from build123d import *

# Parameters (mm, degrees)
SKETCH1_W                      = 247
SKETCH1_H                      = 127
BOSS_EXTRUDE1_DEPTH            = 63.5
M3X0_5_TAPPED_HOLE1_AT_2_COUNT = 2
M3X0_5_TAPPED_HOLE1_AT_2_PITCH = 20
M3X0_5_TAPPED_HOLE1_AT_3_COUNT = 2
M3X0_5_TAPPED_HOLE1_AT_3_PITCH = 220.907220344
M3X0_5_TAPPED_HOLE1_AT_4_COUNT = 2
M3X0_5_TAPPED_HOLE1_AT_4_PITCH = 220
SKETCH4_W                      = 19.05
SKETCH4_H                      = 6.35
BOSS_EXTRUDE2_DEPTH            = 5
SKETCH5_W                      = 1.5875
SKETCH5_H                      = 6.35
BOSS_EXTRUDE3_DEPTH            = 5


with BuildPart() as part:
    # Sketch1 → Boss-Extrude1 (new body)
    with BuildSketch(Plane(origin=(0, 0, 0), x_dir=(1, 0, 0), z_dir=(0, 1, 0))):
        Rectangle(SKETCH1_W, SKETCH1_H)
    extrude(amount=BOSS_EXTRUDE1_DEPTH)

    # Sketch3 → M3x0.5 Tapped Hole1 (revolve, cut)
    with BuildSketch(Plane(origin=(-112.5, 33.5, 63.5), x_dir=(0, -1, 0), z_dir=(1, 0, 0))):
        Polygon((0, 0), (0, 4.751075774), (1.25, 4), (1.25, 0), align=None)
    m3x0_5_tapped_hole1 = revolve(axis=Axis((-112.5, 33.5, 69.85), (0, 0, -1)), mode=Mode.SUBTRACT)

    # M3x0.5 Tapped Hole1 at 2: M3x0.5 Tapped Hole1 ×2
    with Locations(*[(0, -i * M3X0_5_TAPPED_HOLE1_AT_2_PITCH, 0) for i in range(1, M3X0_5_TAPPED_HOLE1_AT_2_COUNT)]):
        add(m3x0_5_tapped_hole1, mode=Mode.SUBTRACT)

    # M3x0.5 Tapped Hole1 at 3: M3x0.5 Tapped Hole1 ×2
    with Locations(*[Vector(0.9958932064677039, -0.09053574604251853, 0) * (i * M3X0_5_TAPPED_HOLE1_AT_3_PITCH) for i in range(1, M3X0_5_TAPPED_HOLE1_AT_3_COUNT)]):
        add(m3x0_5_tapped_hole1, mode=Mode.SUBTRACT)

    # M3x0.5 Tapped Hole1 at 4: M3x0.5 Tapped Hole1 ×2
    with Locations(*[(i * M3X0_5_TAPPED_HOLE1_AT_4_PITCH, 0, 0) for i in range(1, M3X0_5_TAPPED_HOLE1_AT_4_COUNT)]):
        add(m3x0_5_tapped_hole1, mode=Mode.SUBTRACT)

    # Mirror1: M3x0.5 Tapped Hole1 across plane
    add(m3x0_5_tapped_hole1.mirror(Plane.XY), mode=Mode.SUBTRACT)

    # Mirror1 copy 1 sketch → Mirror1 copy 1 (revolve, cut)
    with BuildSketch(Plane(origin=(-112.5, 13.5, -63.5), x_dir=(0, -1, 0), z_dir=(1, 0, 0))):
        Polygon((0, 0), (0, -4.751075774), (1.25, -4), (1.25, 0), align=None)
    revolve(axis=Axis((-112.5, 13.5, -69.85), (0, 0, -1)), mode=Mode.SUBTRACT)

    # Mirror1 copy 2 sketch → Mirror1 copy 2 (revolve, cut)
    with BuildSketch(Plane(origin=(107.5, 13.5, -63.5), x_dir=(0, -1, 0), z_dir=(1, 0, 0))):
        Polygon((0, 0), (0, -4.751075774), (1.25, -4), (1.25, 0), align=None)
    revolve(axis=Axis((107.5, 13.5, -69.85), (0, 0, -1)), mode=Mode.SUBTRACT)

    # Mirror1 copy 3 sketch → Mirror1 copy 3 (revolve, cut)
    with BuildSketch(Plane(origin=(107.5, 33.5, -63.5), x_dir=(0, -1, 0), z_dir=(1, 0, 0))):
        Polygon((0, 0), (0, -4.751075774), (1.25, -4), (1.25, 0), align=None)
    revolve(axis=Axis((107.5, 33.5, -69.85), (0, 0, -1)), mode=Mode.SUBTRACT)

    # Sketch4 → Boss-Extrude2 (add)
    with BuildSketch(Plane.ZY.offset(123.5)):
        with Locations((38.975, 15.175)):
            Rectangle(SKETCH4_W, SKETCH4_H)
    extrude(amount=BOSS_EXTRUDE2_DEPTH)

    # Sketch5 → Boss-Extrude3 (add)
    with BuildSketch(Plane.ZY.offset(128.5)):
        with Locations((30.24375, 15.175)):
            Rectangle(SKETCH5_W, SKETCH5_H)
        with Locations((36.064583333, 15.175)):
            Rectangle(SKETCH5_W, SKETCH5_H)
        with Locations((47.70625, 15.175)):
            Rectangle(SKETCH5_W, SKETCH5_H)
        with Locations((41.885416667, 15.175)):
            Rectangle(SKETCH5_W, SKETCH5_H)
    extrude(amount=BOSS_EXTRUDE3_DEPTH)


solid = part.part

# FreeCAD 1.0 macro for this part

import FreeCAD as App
import Part
import Sketcher
Q = App.Units.Quantity


def add_polygon(sketch, points):
    """Adds a closed chain of lines whose ends are joined by coincident constraints."""
    first, n = sketch.GeometryCount, len(points)
    for a, b in zip(points, points[1:] + points[:1]):
        sketch.addGeometry(Part.LineSegment(App.Vector(*a, 0), App.Vector(*b, 0)), False)
    for i in range(n):
        sketch.addConstraint(Sketcher.Constraint("Coincident", first + i, 2, first + (i + 1) % n, 1))

doc = App.newDocument("Part")
body = doc.addObject("PartDesign::Body", "Body")

# Sketch on XZ plane
sketch1 = body.newObject("Sketcher::SketchObject", "Sketch")
sketch1.AttachmentSupport = (doc.getObject("XZ_Plane"), [""])
sketch1.MapMode = "FlatFace"
add_polygon(sketch1, [(-124, -64), (-124, 64), (124, 64), (124, -64)])  # lines 0-3
sketch1.addConstraint([
    Sketcher.Constraint("Vertical", 0),
    Sketcher.Constraint("Horizontal", 1),
    Sketcher.Constraint("Vertical", 2),
    Sketcher.Constraint("Horizontal", 3),
    Sketcher.Constraint("Symmetric", 0, 2, 2, 2, -1, 1),
    Sketcher.Constraint("DistanceY", 0, 1, 0, 2, Q("5 in")),
    Sketcher.Constraint("DistanceX", 1, 1, 1, 2, 247.0),
])
pad1 = body.newObject("PartDesign::Pad", "Pad")
pad1.Profile = sketch1
pad1.Length = Q("2.5 in")
pad1.Reversed = True

# Sketch on YZ plane
sketch2 = body.newObject("Sketcher::SketchObject", "Sketch001")
sketch2.AttachmentSupport = (doc.getObject("YZ_Plane"), [""])
sketch2.MapMode = "FlatFace"
sketch2.AttachmentOffset = App.Placement(App.Vector(0, 0, -112.5), App.Rotation())
add_polygon(sketch2, [(33.5, 58.7), (33.5, 63.5), (32.2, 63.5), (32.2, 59.5)])  # lines 0-3
sketch2.addGeometry(Part.LineSegment(App.Vector(33.5, 63.5, 0), App.Vector(33.5, 58.7, 0)), True)  # axis
sketch2.addConstraint([
    Sketcher.Constraint("Vertical", 0),
    Sketcher.Constraint("Horizontal", 1),
    Sketcher.Constraint("Vertical", 2),
    Sketcher.Constraint("Vertical", 4),
    Sketcher.Constraint("Coincident", 4, 1, 0, 2),
    Sketcher.Constraint("Equal", 0, 4),
    Sketcher.Constraint("Angle", 3, Q("-31 deg")),
    Sketcher.Constraint("DistanceY", -1, 1, 0, 2, Q("2.5 in")),
    Sketcher.Constraint("DistanceX", 1, 2, 1, 1, 1.25),
    Sketcher.Constraint("DistanceY", 2, 2, 2, 1, 4.0),
    Sketcher.Constraint("DistanceX", -1, 1, 0, 2, 33.5),
])
groove = body.newObject("PartDesign::Groove", "Groove")
groove.Profile = sketch2
groove.ReferenceAxis = (sketch2, ["Axis0"])
groove.Angle = 360
doc.recompute()

linearpattern = body.newObject("PartDesign::LinearPattern", "LinearPattern")
linearpattern.Originals = [groove]
linearpattern.Direction = (doc.getObject("Y_Axis"), [""])
linearpattern.Mode = "offset"
linearpattern.Offset = 20
linearpattern.Occurrences = 2
linearpattern.Reversed = True
body.Tip = linearpattern
doc.recompute()

datumline = body.newObject("PartDesign::Line", "DatumLine")
datumline.Placement = App.Placement(App.Vector(0, 0, 0), App.Rotation(App.Vector(0, 0, 1), App.Vector(0.995893206, -0.090535746, 0)))
linearpattern2 = body.newObject("PartDesign::LinearPattern", "LinearPattern001")
linearpattern2.Originals = [groove]
linearpattern2.Direction = (datumline, [""])
linearpattern2.Mode = "offset"
linearpattern2.Offset = 220.90722
linearpattern2.Occurrences = 2
body.Tip = linearpattern2
doc.recompute()

linearpattern3 = body.newObject("PartDesign::LinearPattern", "LinearPattern002")
linearpattern3.Originals = [groove]
linearpattern3.Direction = (doc.getObject("X_Axis"), [""])
linearpattern3.Mode = "offset"
linearpattern3.Offset = 220
linearpattern3.Occurrences = 2
body.Tip = linearpattern3
doc.recompute()

mirrored = body.newObject("PartDesign::Mirrored", "Mirrored")
mirrored.Originals = [groove]
mirrored.MirrorPlane = (doc.getObject("XY_Plane"), [""])
body.Tip = mirrored

# Sketch on YZ plane
sketch3 = body.newObject("Sketcher::SketchObject", "Sketch002")
sketch3.AttachmentSupport = (doc.getObject("YZ_Plane"), [""])
sketch3.MapMode = "FlatFace"
sketch3.AttachmentOffset = App.Placement(App.Vector(0, 0, -112.5), App.Rotation())
add_polygon(sketch3, [(13.5, -63.5), (13.5, -58.7), (12.2, -59.5), (12.2, -63.5)])  # lines 0-3
sketch3.addGeometry(Part.LineSegment(App.Vector(13.5, -58.7, 0), App.Vector(13.5, -63.5, 0)), True)  # axis
sketch3.addConstraint([
    Sketcher.Constraint("Vertical", 0),
    Sketcher.Constraint("Vertical", 2),
    Sketcher.Constraint("Horizontal", 3),
    Sketcher.Constraint("Vertical", 4),
    Sketcher.Constraint("Coincident", 4, 1, 0, 2),
    Sketcher.Constraint("Horizontal", 2, 2, 4, 2),
    Sketcher.Constraint("Angle", 1, Q("-149 deg")),
    Sketcher.Constraint("DistanceY", 2, 2, -1, 1, Q("2.5 in")),
    Sketcher.Constraint("DistanceX", 3, 1, 3, 2, 1.25),
    Sketcher.Constraint("DistanceY", 2, 2, 2, 1, 4.0),
    Sketcher.Constraint("DistanceX", -1, 1, 0, 2, 13.5),
])
groove2 = body.newObject("PartDesign::Groove", "Groove001")
groove2.Profile = sketch3
groove2.ReferenceAxis = (sketch3, ["Axis0"])
groove2.Angle = 360

# Sketch on YZ plane
sketch4 = body.newObject("Sketcher::SketchObject", "Sketch003")
sketch4.AttachmentSupport = (doc.getObject("YZ_Plane"), [""])
sketch4.MapMode = "FlatFace"
sketch4.AttachmentOffset = App.Placement(App.Vector(0, 0, 107.5), App.Rotation())
add_polygon(sketch4, [(13.5, -63.5), (13.5, -58.7), (12.2, -59.5), (12.2, -63.5)])  # lines 0-3
sketch4.addGeometry(Part.LineSegment(App.Vector(13.5, -58.7, 0), App.Vector(13.5, -63.5, 0)), True)  # axis
sketch4.addConstraint([
    Sketcher.Constraint("Vertical", 0),
    Sketcher.Constraint("Vertical", 2),
    Sketcher.Constraint("Horizontal", 3),
    Sketcher.Constraint("Vertical", 4),
    Sketcher.Constraint("Coincident", 4, 1, 0, 2),
    Sketcher.Constraint("Horizontal", 2, 2, 4, 2),
    Sketcher.Constraint("Angle", 1, Q("-149 deg")),
    Sketcher.Constraint("DistanceY", 2, 2, -1, 1, Q("2.5 in")),
    Sketcher.Constraint("DistanceX", 3, 1, 3, 2, 1.25),
    Sketcher.Constraint("DistanceY", 2, 2, 2, 1, 4.0),
    Sketcher.Constraint("DistanceX", -1, 1, 0, 2, 13.5),
])
groove3 = body.newObject("PartDesign::Groove", "Groove002")
groove3.Profile = sketch4
groove3.ReferenceAxis = (sketch4, ["Axis0"])
groove3.Angle = 360

# Sketch on YZ plane
sketch5 = body.newObject("Sketcher::SketchObject", "Sketch004")
sketch5.AttachmentSupport = (doc.getObject("YZ_Plane"), [""])
sketch5.MapMode = "FlatFace"
sketch5.AttachmentOffset = App.Placement(App.Vector(0, 0, 107.5), App.Rotation())
add_polygon(sketch5, [(33.5, -63.5), (33.5, -58.7), (32.2, -59.5), (32.2, -63.5)])  # lines 0-3
sketch5.addGeometry(Part.LineSegment(App.Vector(33.5, -58.7, 0), App.Vector(33.5, -63.5, 0)), True)  # axis
sketch5.addConstraint([
    Sketcher.Constraint("Vertical", 0),
    Sketcher.Constraint("Vertical", 2),
    Sketcher.Constraint("Horizontal", 3),
    Sketcher.Constraint("Vertical", 4),
    Sketcher.Constraint("Coincident", 4, 1, 0, 2),
    Sketcher.Constraint("Horizontal", 2, 2, 4, 2),
    Sketcher.Constraint("Angle", 1, Q("-149 deg")),
    Sketcher.Constraint("DistanceY", 2, 2, -1, 1, Q("2.5 in")),
    Sketcher.Constraint("DistanceX", 3, 1, 3, 2, 1.25),
    Sketcher.Constraint("DistanceY", 2, 2, 2, 1, 4.0),
    Sketcher.Constraint("DistanceX", -1, 1, 0, 2, 33.5),
])
groove4 = body.newObject("PartDesign::Groove", "Groove003")
groove4.Profile = sketch5
groove4.ReferenceAxis = (sketch5, ["Axis0"])
groove4.Angle = 360

# Sketch on YZ plane
sketch6 = body.newObject("Sketcher::SketchObject", "Sketch005")
sketch6.AttachmentSupport = (doc.getObject("YZ_Plane"), [""])
sketch6.MapMode = "FlatFace"
sketch6.AttachmentOffset = App.Placement(App.Vector(0, 0, -123.5), App.Rotation())
add_polygon(sketch6, [(18, 29), (12, 29), (12, 48), (18, 48)])  # lines 0-3
sketch6.addConstraint([
    Sketcher.Constraint("Horizontal", 0),
    Sketcher.Constraint("Vertical", 1),
    Sketcher.Constraint("Horizontal", 2),
    Sketcher.Constraint("Vertical", 3),
    Sketcher.Constraint("DistanceX", 0, 2, 0, 1, Q("0.25 in")),
    Sketcher.Constraint("DistanceY", 1, 1, 1, 2, Q("0.75 in")),
    Sketcher.Constraint("DistanceX", -1, 1, 0, 2, 12.0),
    Sketcher.Constraint("DistanceY", -1, 1, 0, 2, 29.45),
])
pad2 = body.newObject("PartDesign::Pad", "Pad001")
pad2.Profile = sketch6
pad2.Length = 5
pad2.Reversed = True

# Sketch on YZ plane
sketch7 = body.newObject("Sketcher::SketchObject", "Sketch006")
sketch7.AttachmentSupport = (doc.getObject("YZ_Plane"), [""])
sketch7.MapMode = "FlatFace"
sketch7.AttachmentOffset = App.Placement(App.Vector(0, 0, -128.5), App.Rotation())
add_polygon(sketch7, [(18.4, 29.4), (12, 29.4), (12, 31), (18.4, 31)])  # lines 0-3
add_polygon(sketch7, [(18.4, 35.3), (12, 35.3), (12, 36.9), (18.4, 36.9)])  # lines 4-7
add_polygon(sketch7, [(18.4, 46.9), (12, 46.9), (12, 48.5), (18.4, 48.5)])  # lines 8-11
add_polygon(sketch7, [(18.4, 41.1), (12, 41.1), (12, 42.7), (18.4, 42.7)])  # lines 12-15
sketch7.addConstraint([
    Sketcher.Constraint("Horizontal", 0),
    Sketcher.Constraint("Vertical", 1),
    Sketcher.Constraint("Horizontal", 2),
    Sketcher.Constraint("Vertical", 3),
    Sketcher.Constraint("Horizontal", 4),
    Sketcher.Constraint("Vertical", 5),
    Sketcher.Constraint("Horizontal", 6),
    Sketcher.Constraint("Vertical", 7),
    Sketcher.Constraint("Horizontal", 8),
    Sketcher.Constraint("Vertical", 9),
    Sketcher.Constraint("Horizontal", 10),
    Sketcher.Constraint("Vertical", 11),
    Sketcher.Constraint("Horizontal", 12),
    Sketcher.Constraint("Vertical", 13),
    Sketcher.Constraint("Horizontal", 14),
    Sketcher.Constraint("Vertical", 15),
    Sketcher.Constraint("Vertical", 1, 2, 4, 2),
    Sketcher.Constraint("Vertical", 3, 2, 6, 2),
    Sketcher.Constraint("Vertical", 5, 2, 8, 2),
    Sketcher.Constraint("Vertical", 7, 2, 10, 2),
    Sketcher.Constraint("Vertical", 9, 2, 12, 2),
    Sketcher.Constraint("Vertical", 11, 2, 14, 2),
    Sketcher.Constraint("Equal", 3, 5),
    Sketcher.Constraint("Equal", 7, 9),
    Sketcher.Constraint("Equal", 11, 13),
    Sketcher.Constraint("DistanceX", 0, 2, 0, 1, Q("0.25 in")),
    Sketcher.Constraint("DistanceY", 1, 1, 1, 2, Q("0.0625 in")),
    Sketcher.Constraint("DistanceY", 1, 2, 8, 2, Q("0.625 in")),
    Sketcher.Constraint("DistanceX", -1, 1, 0, 2, 12.0),
    Sketcher.Constraint("DistanceY", -1, 1, 0, 2, 29.45),
    Sketcher.Constraint("DistanceY", -1, 1, 4, 2, 35.270833),
    Sketcher.Constraint("DistanceY", -1, 1, 12, 2, 41.091667),
])
pad3 = body.newObject("PartDesign::Pad", "Pad002")
pad3.Profile = sketch7
pad3.Length = 5
pad3.Reversed = True

doc.recompute()
